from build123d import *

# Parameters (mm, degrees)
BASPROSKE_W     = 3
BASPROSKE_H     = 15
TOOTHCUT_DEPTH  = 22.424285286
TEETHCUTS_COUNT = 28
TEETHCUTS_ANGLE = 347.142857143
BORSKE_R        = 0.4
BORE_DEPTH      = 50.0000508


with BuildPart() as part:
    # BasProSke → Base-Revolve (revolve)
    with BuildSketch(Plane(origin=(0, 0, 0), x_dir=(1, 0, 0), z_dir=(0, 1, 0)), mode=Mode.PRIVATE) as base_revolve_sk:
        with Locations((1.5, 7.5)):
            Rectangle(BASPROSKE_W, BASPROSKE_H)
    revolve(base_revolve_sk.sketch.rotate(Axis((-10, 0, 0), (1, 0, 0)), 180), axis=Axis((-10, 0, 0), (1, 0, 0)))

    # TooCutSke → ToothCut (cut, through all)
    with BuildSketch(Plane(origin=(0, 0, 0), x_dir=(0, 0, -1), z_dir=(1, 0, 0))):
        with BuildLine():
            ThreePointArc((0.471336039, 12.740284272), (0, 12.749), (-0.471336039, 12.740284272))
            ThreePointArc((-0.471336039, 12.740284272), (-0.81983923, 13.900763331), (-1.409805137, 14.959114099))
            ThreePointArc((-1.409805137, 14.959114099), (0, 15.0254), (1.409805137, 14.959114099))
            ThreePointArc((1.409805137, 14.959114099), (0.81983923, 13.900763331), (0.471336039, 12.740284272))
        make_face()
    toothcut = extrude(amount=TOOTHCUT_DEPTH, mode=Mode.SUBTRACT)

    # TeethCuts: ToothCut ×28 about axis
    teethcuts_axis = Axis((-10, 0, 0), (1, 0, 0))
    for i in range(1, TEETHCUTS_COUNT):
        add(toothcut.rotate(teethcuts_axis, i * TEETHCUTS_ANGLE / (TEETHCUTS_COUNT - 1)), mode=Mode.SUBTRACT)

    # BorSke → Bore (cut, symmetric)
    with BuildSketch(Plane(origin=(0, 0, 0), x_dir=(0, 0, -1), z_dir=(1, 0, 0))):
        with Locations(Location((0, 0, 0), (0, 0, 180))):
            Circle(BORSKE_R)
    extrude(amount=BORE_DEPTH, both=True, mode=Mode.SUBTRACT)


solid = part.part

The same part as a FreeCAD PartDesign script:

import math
import FreeCAD as App
import Part
import Sketcher
from FreeCAD import Vector

doc = App.newDocument("Part")
body = doc.addObject("PartDesign::Body", "Body")

# Sketch on XZ plane
sketch1 = body.newObject("Sketcher::SketchObject", "Sketch")
sketch1.AttachmentSupport = (doc.getObject("XZ_Plane"), [""])
sketch1.MapMode = "FlatFace"
sketch1.addGeometry(Part.LineSegment(Vector(0, -15, 0), Vector(0, 0, 0)), False)
sketch1.addGeometry(Part.LineSegment(Vector(0, 0, 0), Vector(3, 0, 0)), False)
sketch1.addGeometry(Part.LineSegment(Vector(3, 0, 0), Vector(3, -15, 0)), False)
sketch1.addGeometry(Part.LineSegment(Vector(3, -15, 0), Vector(0, -15, 0)), False)
sketch1.addConstraint(Sketcher.Constraint("Coincident", 0, 2, 1, 1))
sketch1.addConstraint(Sketcher.Constraint("Coincident", 1, 2, 2, 1))
sketch1.addConstraint(Sketcher.Constraint("Coincident", 2, 2, 3, 1))
sketch1.addConstraint(Sketcher.Constraint("Coincident", 3, 2, 0, 1))
sketch1.addConstraint(Sketcher.Constraint("Vertical", 0))
sketch1.addConstraint(Sketcher.Constraint("Horizontal", 1))
sketch1.addConstraint(Sketcher.Constraint("Vertical", 2))
sketch1.addConstraint(Sketcher.Constraint("Horizontal", 3))
sketch1.addConstraint(Sketcher.Constraint("Coincident", 0, 2, -1, 1))
sketch1.addConstraint(Sketcher.Constraint("DistanceX", 1, 1, 1, 2, 3.0))
sketch1.addConstraint(Sketcher.Constraint("DistanceY", 0, 1, 0, 2, 15.0))
revolution = body.newObject("PartDesign::Revolution", "Revolution")
revolution.Profile = sketch1
revolution.ReferenceAxis = (sketch1, ["H_Axis"])
revolution.Angle = 360

# Sketch on YZ plane
sketch2 = body.newObject("Sketcher::SketchObject", "Sketch001")
sketch2.AttachmentSupport = (doc.getObject("YZ_Plane"), [""])
sketch2.MapMode = "FlatFace"
sketch2.addGeometry(Part.ArcOfCircle(Part.Circle(Vector(0, 0, 0), Vector(0, 0, 1), 12.749), math.radians(-2.118733), math.radians(2.118733)), False)
sketch2.addGeometry(Part.ArcOfCircle(Part.Circle(Vector(11.719305, -5.977478, 0), Vector(0, 0, 1), 5.6), math.radians(54.652268), math.radians(79.49521)), False)
sketch2.addGeometry(Part.ArcOfCircle(Part.Circle(Vector(0, 0, 0), Vector(0, 0, 1), 15.0254), math.radians(-5.383875), math.radians(5.383875)), False)
sketch2.addGeometry(Part.ArcOfCircle(Part.Circle(Vector(11.719305, 5.977478, 0), Vector(0, 0, 1), 5.6), math.radians(-79.49521), math.radians(-54.652268)), False)
sketch2.addConstraint(Sketcher.Constraint("Coincident", 0, 1, 1, 2))
sketch2.addConstraint(Sketcher.Constraint("Coincident", 1, 1, 2, 1))
sketch2.addConstraint(Sketcher.Constraint("Coincident", 2, 2, 3, 2))
sketch2.addConstraint(Sketcher.Constraint("Coincident", 3, 1, 0, 2))
sketch2.addConstraint(Sketcher.Constraint("Coincident", 0, 3, -1, 1))
sketch2.addConstraint(Sketcher.Constraint("Coincident", 2, 3, -1, 1))
sketch2.addConstraint(Sketcher.Constraint("Equal", 1, 3))
sketch2.addConstraint(Sketcher.Constraint("Symmetric", 1, 3, 3, 3, -1))
sketch2.addConstraint(Sketcher.Constraint("Radius", 1, 5.6))
sketch2.addConstraint(Sketcher.Constraint("Radius", 0, 12.749))
sketch2.addConstraint(Sketcher.Constraint("Radius", 2, 15.0254))
sketch2.addConstraint(Sketcher.Constraint("DistanceY", 1, 3, -1, 1, 5.977478))
sketch2.addConstraint(Sketcher.Constraint("DistanceX", 1, 3, 0, 1, 1.020979))
pocket1 = body.newObject("PartDesign::Pocket", "Pocket")
pocket1.Profile = sketch2
pocket1.Type = "ThroughAll"
pocket1.Reversed = True
doc.recompute()

polarpattern = body.newObject("PartDesign::PolarPattern", "PolarPattern")
polarpattern.Originals = [pocket1]
polarpattern.Axis = (doc.getObject("X_Axis"), [""])
polarpattern.Angle = 360
polarpattern.Occurrences = 28
body.Tip = polarpattern

# Sketch on YZ plane
sketch3 = body.newObject("Sketcher::SketchObject", "Sketch002")
sketch3.AttachmentSupport = (doc.getObject("YZ_Plane"), [""])
sketch3.MapMode = "FlatFace"
sketch3.addGeometry(Part.Circle(Vector(0, 0, 0), Vector(0, 0, 1), 0.4), False)
sketch3.addConstraint(Sketcher.Constraint("Coincident", 0, 3, -1, 1))
sketch3.addConstraint(Sketcher.Constraint("Diameter", 0, 0.8))
pocket2 = body.newObject("PartDesign::Pocket", "Pocket001")
pocket2.Profile = sketch3
pocket2.Length = 100.000102
pocket2.Midplane = True

doc.recompute()
